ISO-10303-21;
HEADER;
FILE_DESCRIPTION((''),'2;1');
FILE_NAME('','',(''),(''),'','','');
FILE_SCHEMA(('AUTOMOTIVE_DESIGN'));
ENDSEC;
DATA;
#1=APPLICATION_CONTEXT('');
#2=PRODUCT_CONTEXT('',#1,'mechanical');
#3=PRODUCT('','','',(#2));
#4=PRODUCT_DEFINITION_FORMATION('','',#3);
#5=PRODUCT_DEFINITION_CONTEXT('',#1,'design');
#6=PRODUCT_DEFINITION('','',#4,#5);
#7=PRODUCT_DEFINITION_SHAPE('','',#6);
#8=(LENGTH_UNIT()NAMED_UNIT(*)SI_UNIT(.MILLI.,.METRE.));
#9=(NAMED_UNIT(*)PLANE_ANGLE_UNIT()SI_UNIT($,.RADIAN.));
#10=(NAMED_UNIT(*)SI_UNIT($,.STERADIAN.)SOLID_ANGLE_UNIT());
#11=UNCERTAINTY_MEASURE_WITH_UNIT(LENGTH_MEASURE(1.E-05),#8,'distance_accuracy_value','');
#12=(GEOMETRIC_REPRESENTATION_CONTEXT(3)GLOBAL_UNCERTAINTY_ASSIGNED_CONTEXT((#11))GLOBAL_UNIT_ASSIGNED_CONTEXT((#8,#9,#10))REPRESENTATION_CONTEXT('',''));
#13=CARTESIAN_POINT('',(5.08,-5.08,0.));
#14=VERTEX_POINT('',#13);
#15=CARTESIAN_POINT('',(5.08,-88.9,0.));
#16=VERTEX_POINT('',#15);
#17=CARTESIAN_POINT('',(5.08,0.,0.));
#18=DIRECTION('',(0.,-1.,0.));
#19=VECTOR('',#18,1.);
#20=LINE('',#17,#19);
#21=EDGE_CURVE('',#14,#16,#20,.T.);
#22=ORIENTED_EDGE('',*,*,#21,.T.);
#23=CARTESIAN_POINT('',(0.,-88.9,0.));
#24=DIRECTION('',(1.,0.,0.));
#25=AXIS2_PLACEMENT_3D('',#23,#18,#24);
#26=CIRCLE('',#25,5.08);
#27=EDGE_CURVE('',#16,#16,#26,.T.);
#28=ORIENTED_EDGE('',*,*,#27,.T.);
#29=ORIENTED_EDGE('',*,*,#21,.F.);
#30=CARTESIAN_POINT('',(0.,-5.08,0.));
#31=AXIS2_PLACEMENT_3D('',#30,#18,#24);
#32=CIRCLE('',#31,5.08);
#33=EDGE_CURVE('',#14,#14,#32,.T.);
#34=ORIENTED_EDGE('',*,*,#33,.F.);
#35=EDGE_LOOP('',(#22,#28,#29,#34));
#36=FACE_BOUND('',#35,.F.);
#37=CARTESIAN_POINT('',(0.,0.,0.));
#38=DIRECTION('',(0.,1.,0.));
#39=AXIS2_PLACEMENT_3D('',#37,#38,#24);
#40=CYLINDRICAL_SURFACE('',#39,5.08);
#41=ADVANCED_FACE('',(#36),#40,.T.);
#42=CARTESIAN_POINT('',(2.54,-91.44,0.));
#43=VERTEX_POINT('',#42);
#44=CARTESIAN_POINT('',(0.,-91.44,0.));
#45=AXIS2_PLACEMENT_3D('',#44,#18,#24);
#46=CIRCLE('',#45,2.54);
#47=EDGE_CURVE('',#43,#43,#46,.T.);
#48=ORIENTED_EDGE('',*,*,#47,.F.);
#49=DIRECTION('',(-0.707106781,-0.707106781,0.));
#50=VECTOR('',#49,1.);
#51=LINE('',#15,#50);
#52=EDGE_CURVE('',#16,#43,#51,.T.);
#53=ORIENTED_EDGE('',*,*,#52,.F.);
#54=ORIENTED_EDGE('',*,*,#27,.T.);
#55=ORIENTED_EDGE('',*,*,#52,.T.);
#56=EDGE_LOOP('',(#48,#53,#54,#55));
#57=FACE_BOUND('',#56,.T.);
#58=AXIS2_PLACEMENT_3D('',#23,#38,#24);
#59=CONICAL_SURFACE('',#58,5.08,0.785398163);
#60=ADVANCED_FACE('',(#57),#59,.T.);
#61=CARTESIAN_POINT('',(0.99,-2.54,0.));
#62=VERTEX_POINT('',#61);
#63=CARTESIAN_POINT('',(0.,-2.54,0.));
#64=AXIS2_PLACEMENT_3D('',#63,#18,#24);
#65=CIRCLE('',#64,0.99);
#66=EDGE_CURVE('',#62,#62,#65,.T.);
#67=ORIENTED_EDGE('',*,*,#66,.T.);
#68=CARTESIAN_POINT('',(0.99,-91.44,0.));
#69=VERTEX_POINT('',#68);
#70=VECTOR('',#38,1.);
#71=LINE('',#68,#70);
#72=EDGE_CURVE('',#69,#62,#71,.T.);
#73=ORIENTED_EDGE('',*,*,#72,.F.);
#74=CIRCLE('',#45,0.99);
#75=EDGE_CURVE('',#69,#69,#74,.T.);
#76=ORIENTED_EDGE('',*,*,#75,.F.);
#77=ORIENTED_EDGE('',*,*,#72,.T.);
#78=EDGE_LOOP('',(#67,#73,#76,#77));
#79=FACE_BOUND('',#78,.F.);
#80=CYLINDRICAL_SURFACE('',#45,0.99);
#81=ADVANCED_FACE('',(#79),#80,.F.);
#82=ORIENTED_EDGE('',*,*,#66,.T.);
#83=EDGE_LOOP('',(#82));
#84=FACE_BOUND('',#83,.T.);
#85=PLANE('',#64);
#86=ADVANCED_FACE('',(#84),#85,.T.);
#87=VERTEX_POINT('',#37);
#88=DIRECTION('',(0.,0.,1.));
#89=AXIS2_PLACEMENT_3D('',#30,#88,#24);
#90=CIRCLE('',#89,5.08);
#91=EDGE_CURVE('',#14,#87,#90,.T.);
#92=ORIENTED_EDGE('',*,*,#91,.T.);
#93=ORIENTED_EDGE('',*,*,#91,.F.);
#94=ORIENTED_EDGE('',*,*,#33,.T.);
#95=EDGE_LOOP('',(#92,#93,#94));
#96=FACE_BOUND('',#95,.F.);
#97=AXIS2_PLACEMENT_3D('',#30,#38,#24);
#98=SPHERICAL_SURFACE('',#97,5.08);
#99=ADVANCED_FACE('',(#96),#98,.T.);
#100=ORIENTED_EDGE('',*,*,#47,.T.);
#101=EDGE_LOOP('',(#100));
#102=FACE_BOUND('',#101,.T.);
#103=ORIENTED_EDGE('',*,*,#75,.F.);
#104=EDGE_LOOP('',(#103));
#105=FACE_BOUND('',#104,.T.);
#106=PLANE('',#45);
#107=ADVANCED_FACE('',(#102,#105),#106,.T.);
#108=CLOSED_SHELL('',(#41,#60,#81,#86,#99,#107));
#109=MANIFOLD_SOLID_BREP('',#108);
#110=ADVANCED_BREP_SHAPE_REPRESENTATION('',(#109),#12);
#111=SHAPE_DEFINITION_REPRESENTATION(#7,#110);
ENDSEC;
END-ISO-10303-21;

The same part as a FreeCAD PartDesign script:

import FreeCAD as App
import Part
import Sketcher
from FreeCAD import Vector
Q = App.Units.Quantity


def edges_at(feature, points):
    """Names of the edges that pass closest to the given points."""
    edges = feature.Shape.Edges
    near = lambda p: min(range(len(edges)), key=lambda i: edges[i].distToShape(Part.Vertex(*p))[0])
    return sorted({f"Edge{near(p) + 1}" for p in points})

doc = App.newDocument("Part")
body = doc.addObject("PartDesign::Body", "Body")

sketch1 = body.newObject("Sketcher::SketchObject", "Sketch")
sketch1.AttachmentSupport = (doc.getObject("XZ_Plane"), [""])
sketch1.MapMode = "FlatFace"
sketch1.addGeometry(Part.Circle(Vector(0, 0, 0), Vector(0, 0, 1), 5.08), False)
sketch1.addConstraint([
    Sketcher.Constraint("Coincident", 0, 3, -1, 1),
    Sketcher.Constraint("Diameter", 0, Q("0.4 in")),
])
pad1 = body.newObject("PartDesign::Pad", "Pad")
pad1.Profile = sketch1
pad1.Length = Q("3.6 in")

sketch2 = body.newObject("Sketcher::SketchObject", "Sketch001")
sketch2.AttachmentSupport = (doc.getObject("XZ_Plane"), [""])
sketch2.MapMode = "FlatFace"
sketch2.AttachmentOffset = App.Placement(Vector(0, 0, 3.6 * 25.4), App.Rotation())
sketch2.addGeometry(Part.Circle(Vector(0, 0, 0), Vector(0, 0, 1), 0.99), False)
sketch2.addConstraint([
    Sketcher.Constraint("Coincident", 0, 3, -1, 1),
    Sketcher.Constraint("Diameter", 0, 1.98),
])
pocket1 = body.newObject("PartDesign::Pocket", "Pocket")
pocket1.Profile = sketch2
pocket1.Length = Q("3.5 in")
doc.recompute()

chamfer = body.newObject("PartDesign::Chamfer", "Chamfer")
chamfer.Base = (pocket1, edges_at(pocket1, [(-5.08, -91.44, 0)]))
chamfer.Size = Q("0.1 in")
doc.recompute()

fillet = body.newObject("PartDesign::Fillet", "Fillet")
fillet.Base = (chamfer, edges_at(chamfer, [(-5.08, 0, 0)]))
fillet.Radius = Q("0.2 in")

doc.recompute()
